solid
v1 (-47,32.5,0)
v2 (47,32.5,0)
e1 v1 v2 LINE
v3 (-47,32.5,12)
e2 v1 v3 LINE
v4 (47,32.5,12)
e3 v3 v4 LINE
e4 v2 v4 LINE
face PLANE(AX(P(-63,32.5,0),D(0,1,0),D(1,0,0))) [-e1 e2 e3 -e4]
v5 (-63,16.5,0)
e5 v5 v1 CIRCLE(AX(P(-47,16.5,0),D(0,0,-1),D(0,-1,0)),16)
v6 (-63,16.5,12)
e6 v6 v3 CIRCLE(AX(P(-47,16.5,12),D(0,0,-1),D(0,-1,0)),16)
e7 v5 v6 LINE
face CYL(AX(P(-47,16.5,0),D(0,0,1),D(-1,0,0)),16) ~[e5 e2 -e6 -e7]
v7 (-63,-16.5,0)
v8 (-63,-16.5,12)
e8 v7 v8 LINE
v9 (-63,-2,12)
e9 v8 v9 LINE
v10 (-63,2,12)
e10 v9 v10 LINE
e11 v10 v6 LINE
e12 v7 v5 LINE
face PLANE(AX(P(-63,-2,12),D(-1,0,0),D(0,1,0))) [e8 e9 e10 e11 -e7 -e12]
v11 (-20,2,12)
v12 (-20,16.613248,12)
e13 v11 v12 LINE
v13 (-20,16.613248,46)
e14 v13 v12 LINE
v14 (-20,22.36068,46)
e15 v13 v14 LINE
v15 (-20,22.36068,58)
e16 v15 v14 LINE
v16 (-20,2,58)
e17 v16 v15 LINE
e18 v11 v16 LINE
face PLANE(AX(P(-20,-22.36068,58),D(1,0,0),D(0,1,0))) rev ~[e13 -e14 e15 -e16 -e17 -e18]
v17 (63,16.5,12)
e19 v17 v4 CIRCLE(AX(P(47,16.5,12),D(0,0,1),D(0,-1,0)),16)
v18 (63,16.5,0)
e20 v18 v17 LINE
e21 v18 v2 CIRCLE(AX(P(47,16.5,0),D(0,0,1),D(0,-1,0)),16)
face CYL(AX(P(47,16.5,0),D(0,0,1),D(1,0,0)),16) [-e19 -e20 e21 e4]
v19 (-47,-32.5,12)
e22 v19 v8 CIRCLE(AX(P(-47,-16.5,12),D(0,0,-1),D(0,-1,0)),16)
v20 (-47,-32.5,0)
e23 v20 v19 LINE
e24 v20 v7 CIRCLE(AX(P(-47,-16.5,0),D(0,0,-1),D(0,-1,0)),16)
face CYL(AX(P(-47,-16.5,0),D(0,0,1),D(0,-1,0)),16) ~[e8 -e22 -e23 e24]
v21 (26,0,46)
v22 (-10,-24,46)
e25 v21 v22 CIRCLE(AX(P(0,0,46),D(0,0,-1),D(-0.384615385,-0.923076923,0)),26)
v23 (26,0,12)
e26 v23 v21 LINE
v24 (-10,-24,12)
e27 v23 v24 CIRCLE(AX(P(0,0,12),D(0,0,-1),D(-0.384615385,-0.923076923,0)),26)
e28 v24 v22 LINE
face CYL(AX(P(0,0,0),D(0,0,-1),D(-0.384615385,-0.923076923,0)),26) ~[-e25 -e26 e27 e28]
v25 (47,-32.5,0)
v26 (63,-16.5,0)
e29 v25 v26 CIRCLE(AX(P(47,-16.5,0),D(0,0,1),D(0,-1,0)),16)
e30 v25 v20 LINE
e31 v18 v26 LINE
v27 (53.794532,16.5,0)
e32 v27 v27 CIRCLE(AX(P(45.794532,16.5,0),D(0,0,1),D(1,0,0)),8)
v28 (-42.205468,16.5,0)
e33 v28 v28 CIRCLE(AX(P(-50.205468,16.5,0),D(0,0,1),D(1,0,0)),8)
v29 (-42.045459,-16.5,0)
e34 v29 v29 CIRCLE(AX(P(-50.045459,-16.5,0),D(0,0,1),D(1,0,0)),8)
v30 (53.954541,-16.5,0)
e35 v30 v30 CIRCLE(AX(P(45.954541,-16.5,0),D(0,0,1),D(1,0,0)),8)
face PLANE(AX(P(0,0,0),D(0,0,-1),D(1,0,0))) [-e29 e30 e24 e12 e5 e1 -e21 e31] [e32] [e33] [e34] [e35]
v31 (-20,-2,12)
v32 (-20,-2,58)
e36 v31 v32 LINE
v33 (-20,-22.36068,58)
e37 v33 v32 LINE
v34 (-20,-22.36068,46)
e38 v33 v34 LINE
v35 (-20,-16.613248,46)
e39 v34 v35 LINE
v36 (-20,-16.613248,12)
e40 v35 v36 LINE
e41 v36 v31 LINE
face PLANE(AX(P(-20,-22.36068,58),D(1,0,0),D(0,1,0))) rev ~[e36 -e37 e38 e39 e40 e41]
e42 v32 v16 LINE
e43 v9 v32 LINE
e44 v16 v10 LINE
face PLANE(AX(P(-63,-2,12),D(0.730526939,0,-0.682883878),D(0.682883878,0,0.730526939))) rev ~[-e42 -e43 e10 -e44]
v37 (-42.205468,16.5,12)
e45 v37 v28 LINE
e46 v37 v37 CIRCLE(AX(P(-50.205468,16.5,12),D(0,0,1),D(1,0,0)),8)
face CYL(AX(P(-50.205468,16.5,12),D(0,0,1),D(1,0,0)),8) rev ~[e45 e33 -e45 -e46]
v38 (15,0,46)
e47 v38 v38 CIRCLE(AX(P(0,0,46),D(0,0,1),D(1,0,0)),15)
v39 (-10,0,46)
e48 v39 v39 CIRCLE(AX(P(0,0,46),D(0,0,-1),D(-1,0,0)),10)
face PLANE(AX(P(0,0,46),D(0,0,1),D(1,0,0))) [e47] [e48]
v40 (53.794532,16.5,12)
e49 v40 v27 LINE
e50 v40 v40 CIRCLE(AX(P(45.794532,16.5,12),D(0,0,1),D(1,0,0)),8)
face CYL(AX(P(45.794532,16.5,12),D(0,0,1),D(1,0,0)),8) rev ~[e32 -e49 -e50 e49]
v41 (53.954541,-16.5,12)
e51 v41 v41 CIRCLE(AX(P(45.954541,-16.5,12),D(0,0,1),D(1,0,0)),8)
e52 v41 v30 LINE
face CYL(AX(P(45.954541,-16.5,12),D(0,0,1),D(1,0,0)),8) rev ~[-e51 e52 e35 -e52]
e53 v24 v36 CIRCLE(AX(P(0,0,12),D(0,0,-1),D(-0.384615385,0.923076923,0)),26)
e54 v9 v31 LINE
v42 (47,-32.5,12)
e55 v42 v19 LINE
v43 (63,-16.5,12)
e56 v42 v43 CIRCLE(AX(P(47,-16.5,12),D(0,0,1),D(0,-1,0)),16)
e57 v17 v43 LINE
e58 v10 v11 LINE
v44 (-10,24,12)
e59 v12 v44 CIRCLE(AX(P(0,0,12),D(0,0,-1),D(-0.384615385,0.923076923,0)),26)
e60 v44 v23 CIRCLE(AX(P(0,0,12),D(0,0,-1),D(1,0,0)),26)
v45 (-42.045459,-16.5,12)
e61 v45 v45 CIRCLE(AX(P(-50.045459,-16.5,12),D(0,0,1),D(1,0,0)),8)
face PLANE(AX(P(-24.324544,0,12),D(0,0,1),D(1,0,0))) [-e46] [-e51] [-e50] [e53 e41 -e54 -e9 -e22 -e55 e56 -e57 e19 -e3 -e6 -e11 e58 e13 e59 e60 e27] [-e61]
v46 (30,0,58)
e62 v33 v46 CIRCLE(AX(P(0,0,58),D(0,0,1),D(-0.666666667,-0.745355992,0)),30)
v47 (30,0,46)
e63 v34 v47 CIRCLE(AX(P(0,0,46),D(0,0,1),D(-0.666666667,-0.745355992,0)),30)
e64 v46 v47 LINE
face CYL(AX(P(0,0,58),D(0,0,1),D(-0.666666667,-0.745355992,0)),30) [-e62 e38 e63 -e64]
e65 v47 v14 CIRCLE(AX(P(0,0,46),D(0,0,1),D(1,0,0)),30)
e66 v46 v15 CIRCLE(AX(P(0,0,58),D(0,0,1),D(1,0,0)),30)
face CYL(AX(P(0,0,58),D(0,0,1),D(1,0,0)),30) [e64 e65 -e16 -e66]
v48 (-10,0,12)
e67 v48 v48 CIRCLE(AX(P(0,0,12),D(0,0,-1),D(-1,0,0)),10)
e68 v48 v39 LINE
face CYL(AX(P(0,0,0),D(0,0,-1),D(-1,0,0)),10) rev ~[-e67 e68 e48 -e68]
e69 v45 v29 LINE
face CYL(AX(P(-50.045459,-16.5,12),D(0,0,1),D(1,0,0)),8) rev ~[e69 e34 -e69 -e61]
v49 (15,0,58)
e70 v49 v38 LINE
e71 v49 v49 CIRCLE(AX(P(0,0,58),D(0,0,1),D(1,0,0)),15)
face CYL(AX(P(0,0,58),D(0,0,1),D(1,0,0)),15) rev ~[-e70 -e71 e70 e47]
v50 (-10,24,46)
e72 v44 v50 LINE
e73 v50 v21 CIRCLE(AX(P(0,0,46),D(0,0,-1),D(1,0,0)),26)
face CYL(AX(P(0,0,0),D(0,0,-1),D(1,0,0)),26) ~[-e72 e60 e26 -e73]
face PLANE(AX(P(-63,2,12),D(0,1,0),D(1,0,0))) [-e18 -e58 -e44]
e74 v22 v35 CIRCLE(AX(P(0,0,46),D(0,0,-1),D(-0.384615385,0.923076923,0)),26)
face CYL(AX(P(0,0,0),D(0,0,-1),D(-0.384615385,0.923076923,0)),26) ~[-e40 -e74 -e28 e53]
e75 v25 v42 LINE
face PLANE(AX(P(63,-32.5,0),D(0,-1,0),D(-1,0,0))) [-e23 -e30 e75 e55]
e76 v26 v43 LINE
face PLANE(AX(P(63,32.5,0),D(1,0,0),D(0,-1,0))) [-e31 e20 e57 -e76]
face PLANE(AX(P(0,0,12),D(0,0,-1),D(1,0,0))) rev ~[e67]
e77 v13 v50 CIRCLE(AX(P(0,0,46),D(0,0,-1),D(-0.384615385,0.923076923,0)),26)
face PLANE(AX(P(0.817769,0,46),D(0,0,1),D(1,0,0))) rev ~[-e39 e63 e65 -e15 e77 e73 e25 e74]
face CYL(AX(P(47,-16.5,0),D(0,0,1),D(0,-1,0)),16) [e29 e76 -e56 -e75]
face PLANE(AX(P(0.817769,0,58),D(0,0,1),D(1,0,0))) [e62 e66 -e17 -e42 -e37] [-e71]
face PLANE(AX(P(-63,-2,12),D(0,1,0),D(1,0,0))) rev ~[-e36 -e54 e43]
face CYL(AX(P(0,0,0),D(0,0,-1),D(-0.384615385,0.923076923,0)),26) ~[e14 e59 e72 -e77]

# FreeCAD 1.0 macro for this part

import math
import FreeCAD as App
import Part
import Sketcher
from FreeCAD import Vector
Q = App.Units.Quantity


def edges_at(feature, points):
    """Names of the edges that pass closest to the given points."""
    edges = feature.Shape.Edges
    near = lambda p: min(range(len(edges)), key=lambda i: edges[i].distToShape(Part.Vertex(*p))[0])
    return sorted({f"Edge{near(p) + 1}" for p in points})


def add_polygon(sketch, points):
    """Adds a closed chain of lines whose ends are joined by coincident constraints."""
    first, n = sketch.GeometryCount, len(points)
    for a, b in zip(points, points[1:] + points[:1]):
        sketch.addGeometry(Part.LineSegment(App.Vector(*a, 0), App.Vector(*b, 0)), False)
    for i in range(n):
        sketch.addConstraint(Sketcher.Constraint("Coincident", first + i, 2, first + (i + 1) % n, 1))

doc = App.newDocument("Part")
body = doc.addObject("PartDesign::Body", "Body")

sketch1 = doc.addObject("Sketcher::SketchObject", "Sketch")
body.addObject(sketch1)
sketch1.AttachmentSupport = (doc.XY_Plane, [""])
sketch1.MapMode = "FlatFace"
sketch1.addGeometry([
    Part.ArcOfCircle(Part.Circle(Vector(0, 0, 0), Vector(0, 0, 1), 26), math.radians(0), math.radians(113)),
    Part.ArcOfCircle(Part.Circle(Vector(0, 0, 0), Vector(0, 0, 1), 26), math.radians(113), math.radians(247)),
    Part.ArcOfCircle(Part.Circle(Vector(0, 0, 0), Vector(0, 0, 1), 26), math.radians(-113), math.radians(0)),
    Part.Circle(Vector(0, 0, 0), Vector(0, 0, 1), 10),
], False)
sketch1.addConstraint([
    Sketcher.Constraint("Tangent", 0, 2, 1, 1),
    Sketcher.Constraint("Tangent", 1, 2, 2, 1),
    Sketcher.Constraint("Tangent", 2, 2, 0, 1),
    Sketcher.Constraint("Coincident", 0, 3, -1, 1),
    Sketcher.Constraint("Coincident", 3, 3, -1, 1),
    Sketcher.Constraint("PointOnObject", 2, 2, -1),
    Sketcher.Constraint("Vertical", 0, 2, 1, 2),
    Sketcher.Constraint("Diameter", 3, Q("20 mm")),
    Sketcher.Constraint("Radius", 0, Q("26 mm")),
    Sketcher.Constraint("DistanceX", 0, 2, -1, 1, Q("10 mm")),
])
pad1 = doc.addObject("PartDesign::Pad", "Pad")
body.addObject(pad1)
pad1.Profile = sketch1
pad1.Length = 58

sketch2 = doc.addObject("Sketcher::SketchObject", "Sketch001")
body.addObject(sketch2)
sketch2.AttachmentSupport = (doc.XY_Plane, [""])
sketch2.MapMode = "FlatFace"
add_polygon(sketch2, [(63, -32), (-63, -32), (-63, 32), (63, 32)])
sketch2.addConstraint([
    Sketcher.Constraint("Horizontal", 0),
    Sketcher.Constraint("Vertical", 1),
    Sketcher.Constraint("Horizontal", 2),
    Sketcher.Constraint("Vertical", 3),
    Sketcher.Constraint("Symmetric", 0, 2, 2, 2, -1, 1),
    Sketcher.Constraint("DistanceX", 0, 2, 0, 1, Q("126 mm")),
    Sketcher.Constraint("DistanceY", 1, 1, 1, 2, Q("65 mm")),
])
pad2 = doc.addObject("PartDesign::Pad", "Pad001")
body.addObject(pad2)
pad2.Profile = sketch2
pad2.Length = 12

sketch3 = doc.addObject("Sketcher::SketchObject", "Sketch002")
body.addObject(sketch3)
sketch3.AttachmentSupport = (doc.XY_Plane, [""])
sketch3.MapMode = "FlatFace"
sketch3.AttachmentOffset = App.Placement(Vector(0, 0, 12), App.Rotation())
sketch3.addGeometry([
    Part.Circle(Vector(-50, -16, 0), Vector(0, 0, 1), 8),
    Part.Circle(Vector(-50, 16, 0), Vector(0, 0, 1), 8),
    Part.Circle(Vector(46, 16, 0), Vector(0, 0, 1), 8),
    Part.Circle(Vector(46, -16, 0), Vector(0, 0, 1), 8),
], False)
sketch3.addConstraint([
    Sketcher.Constraint("Equal", 0, 1),
    Sketcher.Constraint("Equal", 1, 2),
    Sketcher.Constraint("Equal", 2, 3),
    Sketcher.Constraint("Horizontal", 1, 3, 2, 3),
    Sketcher.Constraint("Horizontal", 0, 3, 3, 3),
    Sketcher.Constraint("Diameter", 0, Q("16 mm")),
    Sketcher.Constraint("DistanceY", 0, 3, 1, 3, Q("33 mm")),
    Sketcher.Constraint("DistanceX", 1, 3, 2, 3, Q("96 mm")),
    Sketcher.Constraint("DistanceX", 0, 3, 3, 3, Q("96 mm")),
    Sketcher.Constraint("DistanceY", 0, 3, -1, 1, Q("16.5 mm")),
    Sketcher.Constraint("DistanceX", 0, 3, -1, 1, Q("50.045459 mm")),
    Sketcher.Constraint("DistanceX", 1, 3, -1, 1, Q("50.205468 mm")),
])
pocket1 = doc.addObject("PartDesign::Pocket", "Pocket")
body.addObject(pocket1)
pocket1.Profile = sketch3
pocket1.Length = 25
doc.recompute()

fillet = doc.addObject("PartDesign::Fillet", "Fillet")
body.addObject(fillet)
fillet.Base = (pocket1, edges_at(pocket1, [
    (-63, 32.5, 6),
    (-63, -32.5, 6),
    (63, 32.5, 6),
    (63, -32.5, 6),
]))
fillet.Radius = 16

sketch4 = doc.addObject("Sketcher::SketchObject", "Sketch003")
body.addObject(sketch4)
sketch4.AttachmentSupport = (doc.XY_Plane, [""])
sketch4.MapMode = "FlatFace"
sketch4.AttachmentOffset = App.Placement(Vector(0, 0, 58), App.Rotation())
sketch4.addGeometry([
    Part.ArcOfCircle(Part.Circle(Vector(0, 0, 0), Vector(0, 0, 1), 30), math.radians(-132), math.radians(0)),
    Part.ArcOfCircle(Part.Circle(Vector(0, 0, 0), Vector(0, 0, 1), 30), math.radians(0), math.radians(132)),
    Part.ArcOfCircle(Part.Circle(Vector(0, 0, 0), Vector(0, 0, 1), 30), math.radians(132), math.radians(228)),
], False)
sketch4.addConstraint([
    Sketcher.Constraint("Tangent", 0, 2, 1, 1),
    Sketcher.Constraint("Tangent", 1, 2, 2, 1),
    Sketcher.Constraint("Tangent", 2, 2, 0, 1),
    Sketcher.Constraint("Coincident", 0, 3, -1, 1),
    Sketcher.Constraint("PointOnObject", 0, 2, -1),
    Sketcher.Constraint("Vertical", 1, 2, 2, 2),
    Sketcher.Constraint("Radius", 0, Q("30 mm")),
    Sketcher.Constraint("DistanceX", 1, 2, -1, 1, Q("20 mm")),
])
pad3 = doc.addObject("PartDesign::Pad", "Pad002")
body.addObject(pad3)
pad3.Profile = sketch4
pad3.Length = 12
pad3.Reversed = True

sketch5 = doc.addObject("Sketcher::SketchObject", "Sketch004")
body.addObject(sketch5)
sketch5.AttachmentSupport = (doc.XY_Plane, [""])
sketch5.MapMode = "FlatFace"
sketch5.AttachmentOffset = App.Placement(Vector(0, 0, 58), App.Rotation())
sketch5.addGeometry(Part.Circle(Vector(0, 0, 0), Vector(0, 0, 1), 15), False)
sketch5.addConstraint([
    Sketcher.Constraint("Coincident", 0, 3, -1, 1),
    Sketcher.Constraint("Diameter", 0, Q("30 mm")),
])
pocket2 = doc.addObject("PartDesign::Pocket", "Pocket001")
body.addObject(pocket2)
pocket2.Profile = sketch5
pocket2.Length = 12

sketch6 = doc.addObject("Sketcher::SketchObject", "Sketch005")
body.addObject(sketch6)
sketch6.AttachmentSupport = (doc.XY_Plane, [""])
sketch6.MapMode = "FlatFace"
sketch6.AttachmentOffset = App.Placement(Vector(0, 0, 58), App.Rotation())
sketch6.addGeometry([
    Part.ArcOfCircle(Part.Circle(Vector(0, 0, 0), Vector(0, 0, 1), 30), math.radians(132), math.radians(228)),
    Part.LineSegment(Vector(-20, -22, 0), Vector(-20, 22, 0)),
], False)
sketch6.addConstraint([
    Sketcher.Constraint("Coincident", 0, 1, 1, 2),
    Sketcher.Constraint("Coincident", 1, 1, 0, 2),
    Sketcher.Constraint("Vertical", 1),
    Sketcher.Constraint("Coincident", 0, 3, -1, 1),
    Sketcher.Constraint("Radius", 0, Q("30 mm")),
    Sketcher.Constraint("DistanceX", 0, 1, -1, 1, Q("20 mm")),
])
pocket3 = doc.addObject("PartDesign::Pocket", "Pocket002")
body.addObject(pocket3)
pocket3.Profile = sketch6
pocket3.Length = 46

sketch7 = doc.addObject("Sketcher::SketchObject", "Sketch006")
body.addObject(sketch7)
sketch7.AttachmentSupport = (doc.XY_Plane, [""])
sketch7.MapMode = "FlatFace"
sketch7.AttachmentOffset = App.Placement(Vector(0, 0, 12), App.Rotation())
add_polygon(sketch7, [(-63, 2), (-63, -2), (-20, -2), (-20, 2)])
sketch7.addConstraint([
    Sketcher.Constraint("Vertical", 0),
    Sketcher.Constraint("Horizontal", 1),
    Sketcher.Constraint("Vertical", 2),
    Sketcher.Constraint("Horizontal", 3),
    Sketcher.Constraint("DistanceX", 1, 1, 1, 2, Q("43 mm")),
    Sketcher.Constraint("DistanceY", 0, 2, 0, 1, Q("4 mm")),
    Sketcher.Constraint("DistanceX", 0, 2, -1, 1, Q("63 mm")),
    Sketcher.Constraint("DistanceY", 0, 2, -1, 1, Q("2 mm")),
])
pad4 = doc.addObject("PartDesign::Pad", "Pad003")
body.addObject(pad4)
pad4.Profile = sketch7
pad4.Length = 46

sketch8 = doc.addObject("Sketcher::SketchObject", "Sketch007")
body.addObject(sketch8)
sketch8.AttachmentSupport = (doc.XZ_Plane, [""])
sketch8.MapMode = "FlatFace"
sketch8.AttachmentOffset = App.Placement(Vector(0, 0, 2), App.Rotation())
add_polygon(sketch8, [(-63, 12), (-20, 58), (-63, 58)])
sketch8.addConstraint([
    Sketcher.Constraint("Horizontal", 1),
    Sketcher.Constraint("Vertical", 2),
    Sketcher.Constraint("DistanceX", 1, 2, 1, 1, Q("43 mm")),
    Sketcher.Constraint("DistanceY", 2, 2, 2, 1, Q("46 mm")),
    Sketcher.Constraint("DistanceX", 0, 2, -1, 1, Q("20 mm")),
    Sketcher.Constraint("DistanceY", -1, 1, 0, 2, Q("58 mm")),
])
pocket4 = doc.addObject("PartDesign::Pocket", "Pocket003")
body.addObject(pocket4)
pocket4.Profile = sketch8
pocket4.Length = 25

doc.recompute()
